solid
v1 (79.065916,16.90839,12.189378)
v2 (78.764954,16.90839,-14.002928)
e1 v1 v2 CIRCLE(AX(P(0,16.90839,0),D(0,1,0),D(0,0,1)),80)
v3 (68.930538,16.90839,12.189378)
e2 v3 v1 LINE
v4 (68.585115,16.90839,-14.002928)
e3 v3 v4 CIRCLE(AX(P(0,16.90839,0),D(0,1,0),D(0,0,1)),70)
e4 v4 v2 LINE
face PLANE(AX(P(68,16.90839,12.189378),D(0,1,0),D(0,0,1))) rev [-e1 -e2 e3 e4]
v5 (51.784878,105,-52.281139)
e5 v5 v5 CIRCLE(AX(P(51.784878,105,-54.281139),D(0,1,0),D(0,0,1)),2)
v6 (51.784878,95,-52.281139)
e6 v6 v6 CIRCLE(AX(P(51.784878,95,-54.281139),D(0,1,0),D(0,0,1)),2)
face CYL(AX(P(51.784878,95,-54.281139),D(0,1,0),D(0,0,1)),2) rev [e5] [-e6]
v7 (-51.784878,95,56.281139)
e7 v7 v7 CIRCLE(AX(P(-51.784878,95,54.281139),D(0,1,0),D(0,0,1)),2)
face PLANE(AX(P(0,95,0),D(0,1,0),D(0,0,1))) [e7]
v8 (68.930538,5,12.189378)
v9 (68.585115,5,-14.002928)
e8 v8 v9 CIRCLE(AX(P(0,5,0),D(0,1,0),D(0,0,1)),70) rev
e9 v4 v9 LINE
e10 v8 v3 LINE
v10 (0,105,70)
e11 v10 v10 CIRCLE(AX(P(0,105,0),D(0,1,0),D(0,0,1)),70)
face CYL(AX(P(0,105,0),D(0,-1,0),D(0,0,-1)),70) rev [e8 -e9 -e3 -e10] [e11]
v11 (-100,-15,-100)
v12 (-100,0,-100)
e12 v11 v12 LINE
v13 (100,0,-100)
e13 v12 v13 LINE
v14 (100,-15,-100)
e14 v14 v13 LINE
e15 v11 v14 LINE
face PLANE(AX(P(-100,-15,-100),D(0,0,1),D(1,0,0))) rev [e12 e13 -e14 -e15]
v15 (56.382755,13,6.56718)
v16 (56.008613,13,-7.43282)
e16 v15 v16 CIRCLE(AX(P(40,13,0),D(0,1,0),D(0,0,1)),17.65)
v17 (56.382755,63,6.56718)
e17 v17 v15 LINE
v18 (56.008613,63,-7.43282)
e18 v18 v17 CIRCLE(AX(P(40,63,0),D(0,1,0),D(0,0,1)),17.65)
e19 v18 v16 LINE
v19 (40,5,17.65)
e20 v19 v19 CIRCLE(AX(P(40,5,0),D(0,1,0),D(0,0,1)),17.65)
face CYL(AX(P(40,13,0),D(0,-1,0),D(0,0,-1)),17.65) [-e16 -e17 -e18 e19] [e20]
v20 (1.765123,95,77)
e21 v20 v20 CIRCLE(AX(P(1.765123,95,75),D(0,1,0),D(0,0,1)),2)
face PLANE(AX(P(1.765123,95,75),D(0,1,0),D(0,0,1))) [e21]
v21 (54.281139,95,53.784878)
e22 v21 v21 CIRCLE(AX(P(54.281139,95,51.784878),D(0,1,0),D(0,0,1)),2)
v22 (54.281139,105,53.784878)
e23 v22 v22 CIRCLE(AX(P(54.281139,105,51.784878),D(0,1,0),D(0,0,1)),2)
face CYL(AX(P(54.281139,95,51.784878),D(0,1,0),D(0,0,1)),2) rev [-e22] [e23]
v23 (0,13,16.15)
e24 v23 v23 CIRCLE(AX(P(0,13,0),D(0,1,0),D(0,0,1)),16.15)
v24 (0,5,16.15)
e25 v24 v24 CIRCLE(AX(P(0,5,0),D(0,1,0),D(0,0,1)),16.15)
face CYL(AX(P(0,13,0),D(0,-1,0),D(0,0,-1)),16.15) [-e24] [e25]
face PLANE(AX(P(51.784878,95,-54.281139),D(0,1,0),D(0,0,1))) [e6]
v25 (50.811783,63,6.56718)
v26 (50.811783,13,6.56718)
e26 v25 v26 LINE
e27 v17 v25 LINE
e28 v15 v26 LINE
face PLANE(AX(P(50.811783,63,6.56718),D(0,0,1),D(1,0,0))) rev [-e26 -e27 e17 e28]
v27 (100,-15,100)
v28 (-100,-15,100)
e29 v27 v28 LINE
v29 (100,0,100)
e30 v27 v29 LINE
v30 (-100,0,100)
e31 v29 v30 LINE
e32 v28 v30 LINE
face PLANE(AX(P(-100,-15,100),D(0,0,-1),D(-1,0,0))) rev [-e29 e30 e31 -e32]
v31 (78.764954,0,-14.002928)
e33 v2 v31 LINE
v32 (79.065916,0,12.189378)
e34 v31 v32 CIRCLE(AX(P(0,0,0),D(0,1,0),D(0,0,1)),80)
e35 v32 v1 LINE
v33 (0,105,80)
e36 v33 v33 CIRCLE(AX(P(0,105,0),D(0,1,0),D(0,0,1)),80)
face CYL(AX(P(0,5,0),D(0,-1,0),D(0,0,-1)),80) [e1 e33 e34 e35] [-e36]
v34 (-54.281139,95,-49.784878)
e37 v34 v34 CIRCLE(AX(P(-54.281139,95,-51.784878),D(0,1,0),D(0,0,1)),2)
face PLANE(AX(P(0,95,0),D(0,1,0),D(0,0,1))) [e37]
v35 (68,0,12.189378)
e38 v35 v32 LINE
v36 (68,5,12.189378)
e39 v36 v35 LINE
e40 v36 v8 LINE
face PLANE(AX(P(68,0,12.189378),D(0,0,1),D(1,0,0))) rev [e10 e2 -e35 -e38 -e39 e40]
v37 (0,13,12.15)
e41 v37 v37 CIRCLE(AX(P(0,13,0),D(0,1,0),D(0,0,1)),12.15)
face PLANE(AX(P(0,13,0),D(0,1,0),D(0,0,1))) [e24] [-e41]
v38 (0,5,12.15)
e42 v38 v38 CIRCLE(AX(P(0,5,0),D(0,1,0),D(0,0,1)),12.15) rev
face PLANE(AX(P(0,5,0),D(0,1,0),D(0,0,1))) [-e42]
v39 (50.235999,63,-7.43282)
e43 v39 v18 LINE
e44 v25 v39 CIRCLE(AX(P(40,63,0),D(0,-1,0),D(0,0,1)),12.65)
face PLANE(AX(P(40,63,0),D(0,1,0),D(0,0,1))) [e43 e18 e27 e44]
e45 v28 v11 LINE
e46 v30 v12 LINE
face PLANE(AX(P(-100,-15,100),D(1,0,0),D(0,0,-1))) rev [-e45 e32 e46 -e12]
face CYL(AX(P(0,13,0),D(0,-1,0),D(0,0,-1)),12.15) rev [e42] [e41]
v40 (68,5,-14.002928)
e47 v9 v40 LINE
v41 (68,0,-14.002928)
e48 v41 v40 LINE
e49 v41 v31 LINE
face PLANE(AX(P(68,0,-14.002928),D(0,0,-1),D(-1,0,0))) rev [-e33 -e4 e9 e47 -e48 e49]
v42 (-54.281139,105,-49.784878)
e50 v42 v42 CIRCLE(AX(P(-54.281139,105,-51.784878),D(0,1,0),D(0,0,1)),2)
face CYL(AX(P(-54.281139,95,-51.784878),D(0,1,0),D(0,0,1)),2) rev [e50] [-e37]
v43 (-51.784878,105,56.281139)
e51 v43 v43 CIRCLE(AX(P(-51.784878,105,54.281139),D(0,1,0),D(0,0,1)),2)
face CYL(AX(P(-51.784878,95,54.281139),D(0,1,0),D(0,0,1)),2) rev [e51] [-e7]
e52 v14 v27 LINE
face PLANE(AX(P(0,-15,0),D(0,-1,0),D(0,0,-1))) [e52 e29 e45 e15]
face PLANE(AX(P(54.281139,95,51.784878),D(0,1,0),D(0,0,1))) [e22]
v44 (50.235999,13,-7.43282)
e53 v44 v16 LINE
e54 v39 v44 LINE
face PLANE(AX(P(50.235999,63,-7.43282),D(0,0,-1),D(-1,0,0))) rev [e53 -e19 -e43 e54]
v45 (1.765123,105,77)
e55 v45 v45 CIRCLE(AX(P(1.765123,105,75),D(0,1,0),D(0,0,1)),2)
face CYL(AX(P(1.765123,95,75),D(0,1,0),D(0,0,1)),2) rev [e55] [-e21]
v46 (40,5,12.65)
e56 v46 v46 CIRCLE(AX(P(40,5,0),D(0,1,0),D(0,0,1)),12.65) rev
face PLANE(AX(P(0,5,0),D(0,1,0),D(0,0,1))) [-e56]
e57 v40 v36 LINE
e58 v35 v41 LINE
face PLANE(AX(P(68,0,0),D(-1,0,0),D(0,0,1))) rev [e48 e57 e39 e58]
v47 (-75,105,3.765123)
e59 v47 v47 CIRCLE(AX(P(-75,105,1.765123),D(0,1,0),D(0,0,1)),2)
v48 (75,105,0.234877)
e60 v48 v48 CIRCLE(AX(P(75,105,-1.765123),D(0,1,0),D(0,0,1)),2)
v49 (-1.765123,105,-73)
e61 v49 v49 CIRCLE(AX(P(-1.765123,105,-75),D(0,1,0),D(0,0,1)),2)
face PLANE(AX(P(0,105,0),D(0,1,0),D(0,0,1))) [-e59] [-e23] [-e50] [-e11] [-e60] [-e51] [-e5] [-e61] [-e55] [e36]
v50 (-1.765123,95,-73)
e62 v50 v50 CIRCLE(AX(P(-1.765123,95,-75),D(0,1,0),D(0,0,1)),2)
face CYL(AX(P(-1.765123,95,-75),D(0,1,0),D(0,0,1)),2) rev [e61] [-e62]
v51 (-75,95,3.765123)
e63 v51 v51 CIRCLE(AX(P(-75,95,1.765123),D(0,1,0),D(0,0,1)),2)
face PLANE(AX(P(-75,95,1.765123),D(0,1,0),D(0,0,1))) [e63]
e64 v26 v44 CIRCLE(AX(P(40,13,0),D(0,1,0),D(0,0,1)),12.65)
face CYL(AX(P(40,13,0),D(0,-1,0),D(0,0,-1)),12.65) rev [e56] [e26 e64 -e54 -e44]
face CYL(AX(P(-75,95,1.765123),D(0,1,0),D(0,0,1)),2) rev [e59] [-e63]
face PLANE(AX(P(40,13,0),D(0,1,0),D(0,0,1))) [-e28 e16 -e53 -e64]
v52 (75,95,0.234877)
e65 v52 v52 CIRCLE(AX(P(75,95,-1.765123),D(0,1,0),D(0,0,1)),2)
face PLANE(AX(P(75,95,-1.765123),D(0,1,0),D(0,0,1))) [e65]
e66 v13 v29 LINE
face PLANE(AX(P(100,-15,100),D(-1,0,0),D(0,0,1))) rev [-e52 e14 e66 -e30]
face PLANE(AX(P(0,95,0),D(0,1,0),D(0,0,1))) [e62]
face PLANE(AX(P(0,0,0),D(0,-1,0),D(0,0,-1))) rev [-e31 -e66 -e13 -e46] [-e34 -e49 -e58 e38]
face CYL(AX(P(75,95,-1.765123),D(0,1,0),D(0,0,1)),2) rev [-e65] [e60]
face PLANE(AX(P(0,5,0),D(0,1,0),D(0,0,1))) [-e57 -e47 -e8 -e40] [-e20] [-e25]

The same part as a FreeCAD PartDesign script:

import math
import FreeCAD as App
import Part
import Sketcher

V = App.Vector
Q = App.Units.Quantity


def add_polygon(sketch, points):
    """Adds a closed chain of lines whose ends are joined by coincident constraints."""
    first, n = sketch.GeometryCount, len(points)
    for a, b in zip(points, points[1:] + points[:1]):
        sketch.addGeometry(Part.LineSegment(App.Vector(*a, 0), App.Vector(*b, 0)), False)
    for i in range(n):
        sketch.addConstraint(Sketcher.Constraint("Coincident", first + i, 2, first + (i + 1) % n, 1))

doc = App.newDocument("Part")
body = doc.addObject("PartDesign::Body", "Body")

# Sketch on XZ plane
sketch1 = body.newObject("Sketcher::SketchObject", "Sketch")
sketch1.AttachmentSupport = (doc.getObject("XZ_Plane"), [""])
sketch1.MapMode = "FlatFace"
sketch1.addGeometry(Part.Circle(V(0, 0, 0), V(0, 0, 1), 80), False)
sketch1.addConstraint(Sketcher.Constraint("Coincident", 0, 3, -1, 1))
sketch1.addConstraint(Sketcher.Constraint("Diameter", 0, Q("160 mm")))
pad1 = body.newObject("PartDesign::Pad", "Pad")
pad1.Profile = sketch1
pad1.Length = 5
pad1.Reversed = True

# Sketch on XZ plane
sketch2 = body.newObject("Sketcher::SketchObject", "Sketch001")
sketch2.AttachmentSupport = (doc.getObject("XZ_Plane"), [""])
sketch2.MapMode = "FlatFace"
sketch2.AttachmentOffset = App.Placement(V(0, 0, -5), App.Rotation())
sketch2.addGeometry(Part.Circle(V(0, 0, 0), V(0, 0, 1), 80), False)
sketch2.addGeometry(Part.Circle(V(0, 0, 0), V(0, 0, 1), 70), False)
sketch2.addConstraint(Sketcher.Constraint("Coincident", 0, 3, -1, 1))
sketch2.addConstraint(Sketcher.Constraint("Coincident", 1, 3, -1, 1))
sketch2.addConstraint(Sketcher.Constraint("Diameter", 0, Q("160 mm")))
sketch2.addConstraint(Sketcher.Constraint("Diameter", 1, Q("140 mm")))
pad2 = body.newObject("PartDesign::Pad", "Pad001")
pad2.Profile = sketch2
pad2.Length = 100
pad2.Reversed = True

# Sketch on XZ plane
sketch3 = body.newObject("Sketcher::SketchObject", "Sketch002")
sketch3.AttachmentSupport = (doc.getObject("XZ_Plane"), [""])
sketch3.MapMode = "FlatFace"
sketch3.AttachmentOffset = App.Placement(V(0, 0, -5), App.Rotation())
sketch3.addGeometry(Part.Circle(V(0, 0, 0), V(0, 0, 1), 16), False)
sketch3.addGeometry(Part.Circle(V(0, 0, 0), V(0, 0, 1), 12), False)
sketch3.addGeometry(Part.Circle(V(40, 0, 0), V(0, 0, 1), 18), False)
sketch3.addGeometry(Part.Circle(V(40, 0, 0), V(0, 0, 1), 13), False)
sketch3.addConstraint(Sketcher.Constraint("Coincident", 0, 3, -1, 1))
sketch3.addConstraint(Sketcher.Constraint("Coincident", 1, 3, -1, 1))
sketch3.addConstraint(Sketcher.Constraint("Coincident", 3, 3, 2, 3))
sketch3.addConstraint(Sketcher.Constraint("PointOnObject", 2, 3, -1))
sketch3.addConstraint(Sketcher.Constraint("Diameter", 0, Q("32.3 mm")))
sketch3.addConstraint(Sketcher.Constraint("Diameter", 1, Q("24.3 mm")))
sketch3.addConstraint(Sketcher.Constraint("Diameter", 2, Q("35.3 mm")))
sketch3.addConstraint(Sketcher.Constraint("Diameter", 3, Q("25.3 mm")))
sketch3.addConstraint(Sketcher.Constraint("DistanceX", -1, 1, 2, 3, Q("40 mm")))
pad3 = body.newObject("PartDesign::Pad", "Pad002")
pad3.Profile = sketch3
pad3.Length = 8
pad3.Reversed = True

# Sketch on XZ plane
sketch4 = body.newObject("Sketcher::SketchObject", "Sketch003")
sketch4.AttachmentSupport = (doc.getObject("XZ_Plane"), [""])
sketch4.MapMode = "FlatFace"
sketch4.AttachmentOffset = App.Placement(V(0, 0, -13), App.Rotation())
sketch4.addGeometry(Part.LineSegment(V(50, -7, 0), V(56, -7, 0)), False)
sketch4.addGeometry(Part.ArcOfCircle(Part.Circle(V(40, 0, 0), V(0, 0, 1), 18), math.radians(22), math.radians(335)), False)
sketch4.addGeometry(Part.LineSegment(V(56, 7, 0), V(51, 7, 0)), False)
sketch4.addGeometry(Part.ArcOfCircle(Part.Circle(V(40, 0, 0), V(0, 0, 1), 13), math.radians(31), math.radians(324)), False)
sketch4.addConstraint(Sketcher.Constraint("Coincident", 0, 2, 1, 2))
sketch4.addConstraint(Sketcher.Constraint("Coincident", 1, 1, 2, 1))
sketch4.addConstraint(Sketcher.Constraint("Coincident", 2, 2, 3, 1))
sketch4.addConstraint(Sketcher.Constraint("Coincident", 3, 2, 0, 1))
sketch4.addConstraint(Sketcher.Constraint("Horizontal", 0))
sketch4.addConstraint(Sketcher.Constraint("Horizontal", 2))
sketch4.addConstraint(Sketcher.Constraint("Coincident", 3, 3, 1, 3))
sketch4.addConstraint(Sketcher.Constraint("PointOnObject", 1, 3, -1))
sketch4.addConstraint(Sketcher.Constraint("Radius", 1, Q("17.65 mm")))
sketch4.addConstraint(Sketcher.Constraint("Radius", 3, Q("12.65 mm")))
sketch4.addConstraint(Sketcher.Constraint("DistanceX", -1, 1, 1, 3, Q("40 mm")))
sketch4.addConstraint(Sketcher.Constraint("DistanceY", 0, 2, 1, 1, Q("14 mm")))
sketch4.addConstraint(Sketcher.Constraint("DistanceX", -1, 1, 3, 2, Q("50.235999 mm")))
pad4 = body.newObject("PartDesign::Pad", "Pad003")
pad4.Profile = sketch4
pad4.Length = 50
pad4.Reversed = True

# Sketch on XZ plane
sketch5 = body.newObject("Sketcher::SketchObject", "Sketch004")
sketch5.AttachmentSupport = (doc.getObject("XZ_Plane"), [""])
sketch5.MapMode = "FlatFace"
add_polygon(sketch5, [(-100, 100), (-100, -100), (100, -100), (100, 100)])  # lines 0-3
sketch5.addConstraint(Sketcher.Constraint("Vertical", 0))
sketch5.addConstraint(Sketcher.Constraint("Horizontal", 1))
sketch5.addConstraint(Sketcher.Constraint("Vertical", 2))
sketch5.addConstraint(Sketcher.Constraint("Horizontal", 3))
sketch5.addConstraint(Sketcher.Constraint("Symmetric", 0, 2, 2, 2, -1, 1))
sketch5.addConstraint(Sketcher.Constraint("Equal", 3, 0))
sketch5.addConstraint(Sketcher.Constraint("DistanceX", 1, 1, 1, 2, Q("200 mm")))
pad5 = body.newObject("PartDesign::Pad", "Pad004")
pad5.Profile = sketch5
pad5.Length = 15

# Sketch on YZ plane
sketch6 = body.newObject("Sketcher::SketchObject", "Sketch005")
sketch6.AttachmentSupport = (doc.getObject("YZ_Plane"), [""])
sketch6.MapMode = "FlatFace"
sketch6.AttachmentOffset = App.Placement(V(0, 0, 100), App.Rotation())
add_polygon(sketch6, [(17, 12), (0, 12), (0, -14), (17, -14)])  # lines 0-3
sketch6.addConstraint(Sketcher.Constraint("Horizontal", 0))
sketch6.addConstraint(Sketcher.Constraint("Vertical", 1))
sketch6.addConstraint(Sketcher.Constraint("Horizontal", 2))
sketch6.addConstraint(Sketcher.Constraint("Vertical", 3))
sketch6.addConstraint(Sketcher.Constraint("PointOnObject", 0, 2, -2))
sketch6.addConstraint(Sketcher.Constraint("DistanceX", 0, 2, 0, 1, Q("16.90839 mm")))
sketch6.addConstraint(Sketcher.Constraint("DistanceY", 1, 2, 1, 1, Q("26.192306 mm")))
sketch6.addConstraint(Sketcher.Constraint("DistanceY", 1, 2, -1, 1, Q("14.002928 mm")))
pocket1 = body.newObject("PartDesign::Pocket", "Pocket")
pocket1.Profile = sketch6
pocket1.Length = 32

# Sketch on XZ plane
sketch7 = body.newObject("Sketcher::SketchObject", "Sketch006")
sketch7.AttachmentSupport = (doc.getObject("XZ_Plane"), [""])
sketch7.MapMode = "FlatFace"
sketch7.AttachmentOffset = App.Placement(V(0, 0, -105), App.Rotation())
sketch7.addGeometry(Part.Circle(V(-54.3, -51.8, 0), V(0, 0, 1), 2), False)
sketch7.addGeometry(Part.Circle(V(-1.8, -75, 0), V(0, 0, 1), 2), False)
sketch7.addGeometry(Part.Circle(V(-51.8, 54.3, 0), V(0, 0, 1), 2), False)
sketch7.addGeometry(Part.Circle(V(75, -1.8, 0), V(0, 0, 1), 2), False)
sketch7.addGeometry(Part.Circle(V(-75, 1.8, 0), V(0, 0, 1), 2), False)
sketch7.addGeometry(Part.Circle(V(1.8, 75, 0), V(0, 0, 1), 2), False)
sketch7.addGeometry(Part.Circle(V(54.3, 51.8, 0), V(0, 0, 1), 2), False)
sketch7.addGeometry(Part.Circle(V(51.8, -54.3, 0), V(0, 0, 1), 2), False)
sketch7.addConstraint(Sketcher.Constraint("Equal", 0, 1))
sketch7.addConstraint(Sketcher.Constraint("Equal", 1, 2))
sketch7.addConstraint(Sketcher.Constraint("Equal", 2, 3))
sketch7.addConstraint(Sketcher.Constraint("Equal", 3, 4))
sketch7.addConstraint(Sketcher.Constraint("Equal", 4, 5))
sketch7.addConstraint(Sketcher.Constraint("Equal", 5, 6))
sketch7.addConstraint(Sketcher.Constraint("Equal", 6, 7))
sketch7.addConstraint(Sketcher.Constraint("Symmetric", 3, 3, 4, 3, -1, 1))
sketch7.addConstraint(Sketcher.Constraint("Symmetric", 1, 3, 5, 3, -1, 1))
sketch7.addConstraint(Sketcher.Constraint("Symmetric", 0, 3, 6, 3, -1, 1))
sketch7.addConstraint(Sketcher.Constraint("Symmetric", 2, 3, 7, 3, -1, 1))
sketch7.addConstraint(Sketcher.Constraint("Diameter", 0, Q("4 mm")))
sketch7.addConstraint(Sketcher.Constraint("DistanceY", 1, 3, -1, 1, Q("75 mm")))
sketch7.addConstraint(Sketcher.Constraint("DistanceX", -1, 1, 3, 3, Q("75 mm")))
sketch7.addConstraint(Sketcher.Constraint("DistanceY", 0, 3, 4, 3, Q("53.550001 mm")))
sketch7.addConstraint(Sketcher.Constraint("DistanceX", 2, 3, 5, 3, Q("53.550001 mm")))
sketch7.addConstraint(Sketcher.Constraint("DistanceX", 0, 3, -1, 1, Q("54.281139 mm")))
sketch7.addConstraint(Sketcher.Constraint("DistanceY", -1, 1, 2, 3, Q("54.281139 mm")))
sketch7.addConstraint(Sketcher.Constraint("DistanceX", 0, 3, 2, 3, Q("2.496261 mm")))
sketch7.addConstraint(Sketcher.Constraint("DistanceY", 6, 3, 2, 3, Q("2.496261 mm")))
pocket2 = body.newObject("PartDesign::Pocket", "Pocket001")
pocket2.Profile = sketch7
pocket2.Length = 10
pocket2.Reversed = True

doc.recompute()
